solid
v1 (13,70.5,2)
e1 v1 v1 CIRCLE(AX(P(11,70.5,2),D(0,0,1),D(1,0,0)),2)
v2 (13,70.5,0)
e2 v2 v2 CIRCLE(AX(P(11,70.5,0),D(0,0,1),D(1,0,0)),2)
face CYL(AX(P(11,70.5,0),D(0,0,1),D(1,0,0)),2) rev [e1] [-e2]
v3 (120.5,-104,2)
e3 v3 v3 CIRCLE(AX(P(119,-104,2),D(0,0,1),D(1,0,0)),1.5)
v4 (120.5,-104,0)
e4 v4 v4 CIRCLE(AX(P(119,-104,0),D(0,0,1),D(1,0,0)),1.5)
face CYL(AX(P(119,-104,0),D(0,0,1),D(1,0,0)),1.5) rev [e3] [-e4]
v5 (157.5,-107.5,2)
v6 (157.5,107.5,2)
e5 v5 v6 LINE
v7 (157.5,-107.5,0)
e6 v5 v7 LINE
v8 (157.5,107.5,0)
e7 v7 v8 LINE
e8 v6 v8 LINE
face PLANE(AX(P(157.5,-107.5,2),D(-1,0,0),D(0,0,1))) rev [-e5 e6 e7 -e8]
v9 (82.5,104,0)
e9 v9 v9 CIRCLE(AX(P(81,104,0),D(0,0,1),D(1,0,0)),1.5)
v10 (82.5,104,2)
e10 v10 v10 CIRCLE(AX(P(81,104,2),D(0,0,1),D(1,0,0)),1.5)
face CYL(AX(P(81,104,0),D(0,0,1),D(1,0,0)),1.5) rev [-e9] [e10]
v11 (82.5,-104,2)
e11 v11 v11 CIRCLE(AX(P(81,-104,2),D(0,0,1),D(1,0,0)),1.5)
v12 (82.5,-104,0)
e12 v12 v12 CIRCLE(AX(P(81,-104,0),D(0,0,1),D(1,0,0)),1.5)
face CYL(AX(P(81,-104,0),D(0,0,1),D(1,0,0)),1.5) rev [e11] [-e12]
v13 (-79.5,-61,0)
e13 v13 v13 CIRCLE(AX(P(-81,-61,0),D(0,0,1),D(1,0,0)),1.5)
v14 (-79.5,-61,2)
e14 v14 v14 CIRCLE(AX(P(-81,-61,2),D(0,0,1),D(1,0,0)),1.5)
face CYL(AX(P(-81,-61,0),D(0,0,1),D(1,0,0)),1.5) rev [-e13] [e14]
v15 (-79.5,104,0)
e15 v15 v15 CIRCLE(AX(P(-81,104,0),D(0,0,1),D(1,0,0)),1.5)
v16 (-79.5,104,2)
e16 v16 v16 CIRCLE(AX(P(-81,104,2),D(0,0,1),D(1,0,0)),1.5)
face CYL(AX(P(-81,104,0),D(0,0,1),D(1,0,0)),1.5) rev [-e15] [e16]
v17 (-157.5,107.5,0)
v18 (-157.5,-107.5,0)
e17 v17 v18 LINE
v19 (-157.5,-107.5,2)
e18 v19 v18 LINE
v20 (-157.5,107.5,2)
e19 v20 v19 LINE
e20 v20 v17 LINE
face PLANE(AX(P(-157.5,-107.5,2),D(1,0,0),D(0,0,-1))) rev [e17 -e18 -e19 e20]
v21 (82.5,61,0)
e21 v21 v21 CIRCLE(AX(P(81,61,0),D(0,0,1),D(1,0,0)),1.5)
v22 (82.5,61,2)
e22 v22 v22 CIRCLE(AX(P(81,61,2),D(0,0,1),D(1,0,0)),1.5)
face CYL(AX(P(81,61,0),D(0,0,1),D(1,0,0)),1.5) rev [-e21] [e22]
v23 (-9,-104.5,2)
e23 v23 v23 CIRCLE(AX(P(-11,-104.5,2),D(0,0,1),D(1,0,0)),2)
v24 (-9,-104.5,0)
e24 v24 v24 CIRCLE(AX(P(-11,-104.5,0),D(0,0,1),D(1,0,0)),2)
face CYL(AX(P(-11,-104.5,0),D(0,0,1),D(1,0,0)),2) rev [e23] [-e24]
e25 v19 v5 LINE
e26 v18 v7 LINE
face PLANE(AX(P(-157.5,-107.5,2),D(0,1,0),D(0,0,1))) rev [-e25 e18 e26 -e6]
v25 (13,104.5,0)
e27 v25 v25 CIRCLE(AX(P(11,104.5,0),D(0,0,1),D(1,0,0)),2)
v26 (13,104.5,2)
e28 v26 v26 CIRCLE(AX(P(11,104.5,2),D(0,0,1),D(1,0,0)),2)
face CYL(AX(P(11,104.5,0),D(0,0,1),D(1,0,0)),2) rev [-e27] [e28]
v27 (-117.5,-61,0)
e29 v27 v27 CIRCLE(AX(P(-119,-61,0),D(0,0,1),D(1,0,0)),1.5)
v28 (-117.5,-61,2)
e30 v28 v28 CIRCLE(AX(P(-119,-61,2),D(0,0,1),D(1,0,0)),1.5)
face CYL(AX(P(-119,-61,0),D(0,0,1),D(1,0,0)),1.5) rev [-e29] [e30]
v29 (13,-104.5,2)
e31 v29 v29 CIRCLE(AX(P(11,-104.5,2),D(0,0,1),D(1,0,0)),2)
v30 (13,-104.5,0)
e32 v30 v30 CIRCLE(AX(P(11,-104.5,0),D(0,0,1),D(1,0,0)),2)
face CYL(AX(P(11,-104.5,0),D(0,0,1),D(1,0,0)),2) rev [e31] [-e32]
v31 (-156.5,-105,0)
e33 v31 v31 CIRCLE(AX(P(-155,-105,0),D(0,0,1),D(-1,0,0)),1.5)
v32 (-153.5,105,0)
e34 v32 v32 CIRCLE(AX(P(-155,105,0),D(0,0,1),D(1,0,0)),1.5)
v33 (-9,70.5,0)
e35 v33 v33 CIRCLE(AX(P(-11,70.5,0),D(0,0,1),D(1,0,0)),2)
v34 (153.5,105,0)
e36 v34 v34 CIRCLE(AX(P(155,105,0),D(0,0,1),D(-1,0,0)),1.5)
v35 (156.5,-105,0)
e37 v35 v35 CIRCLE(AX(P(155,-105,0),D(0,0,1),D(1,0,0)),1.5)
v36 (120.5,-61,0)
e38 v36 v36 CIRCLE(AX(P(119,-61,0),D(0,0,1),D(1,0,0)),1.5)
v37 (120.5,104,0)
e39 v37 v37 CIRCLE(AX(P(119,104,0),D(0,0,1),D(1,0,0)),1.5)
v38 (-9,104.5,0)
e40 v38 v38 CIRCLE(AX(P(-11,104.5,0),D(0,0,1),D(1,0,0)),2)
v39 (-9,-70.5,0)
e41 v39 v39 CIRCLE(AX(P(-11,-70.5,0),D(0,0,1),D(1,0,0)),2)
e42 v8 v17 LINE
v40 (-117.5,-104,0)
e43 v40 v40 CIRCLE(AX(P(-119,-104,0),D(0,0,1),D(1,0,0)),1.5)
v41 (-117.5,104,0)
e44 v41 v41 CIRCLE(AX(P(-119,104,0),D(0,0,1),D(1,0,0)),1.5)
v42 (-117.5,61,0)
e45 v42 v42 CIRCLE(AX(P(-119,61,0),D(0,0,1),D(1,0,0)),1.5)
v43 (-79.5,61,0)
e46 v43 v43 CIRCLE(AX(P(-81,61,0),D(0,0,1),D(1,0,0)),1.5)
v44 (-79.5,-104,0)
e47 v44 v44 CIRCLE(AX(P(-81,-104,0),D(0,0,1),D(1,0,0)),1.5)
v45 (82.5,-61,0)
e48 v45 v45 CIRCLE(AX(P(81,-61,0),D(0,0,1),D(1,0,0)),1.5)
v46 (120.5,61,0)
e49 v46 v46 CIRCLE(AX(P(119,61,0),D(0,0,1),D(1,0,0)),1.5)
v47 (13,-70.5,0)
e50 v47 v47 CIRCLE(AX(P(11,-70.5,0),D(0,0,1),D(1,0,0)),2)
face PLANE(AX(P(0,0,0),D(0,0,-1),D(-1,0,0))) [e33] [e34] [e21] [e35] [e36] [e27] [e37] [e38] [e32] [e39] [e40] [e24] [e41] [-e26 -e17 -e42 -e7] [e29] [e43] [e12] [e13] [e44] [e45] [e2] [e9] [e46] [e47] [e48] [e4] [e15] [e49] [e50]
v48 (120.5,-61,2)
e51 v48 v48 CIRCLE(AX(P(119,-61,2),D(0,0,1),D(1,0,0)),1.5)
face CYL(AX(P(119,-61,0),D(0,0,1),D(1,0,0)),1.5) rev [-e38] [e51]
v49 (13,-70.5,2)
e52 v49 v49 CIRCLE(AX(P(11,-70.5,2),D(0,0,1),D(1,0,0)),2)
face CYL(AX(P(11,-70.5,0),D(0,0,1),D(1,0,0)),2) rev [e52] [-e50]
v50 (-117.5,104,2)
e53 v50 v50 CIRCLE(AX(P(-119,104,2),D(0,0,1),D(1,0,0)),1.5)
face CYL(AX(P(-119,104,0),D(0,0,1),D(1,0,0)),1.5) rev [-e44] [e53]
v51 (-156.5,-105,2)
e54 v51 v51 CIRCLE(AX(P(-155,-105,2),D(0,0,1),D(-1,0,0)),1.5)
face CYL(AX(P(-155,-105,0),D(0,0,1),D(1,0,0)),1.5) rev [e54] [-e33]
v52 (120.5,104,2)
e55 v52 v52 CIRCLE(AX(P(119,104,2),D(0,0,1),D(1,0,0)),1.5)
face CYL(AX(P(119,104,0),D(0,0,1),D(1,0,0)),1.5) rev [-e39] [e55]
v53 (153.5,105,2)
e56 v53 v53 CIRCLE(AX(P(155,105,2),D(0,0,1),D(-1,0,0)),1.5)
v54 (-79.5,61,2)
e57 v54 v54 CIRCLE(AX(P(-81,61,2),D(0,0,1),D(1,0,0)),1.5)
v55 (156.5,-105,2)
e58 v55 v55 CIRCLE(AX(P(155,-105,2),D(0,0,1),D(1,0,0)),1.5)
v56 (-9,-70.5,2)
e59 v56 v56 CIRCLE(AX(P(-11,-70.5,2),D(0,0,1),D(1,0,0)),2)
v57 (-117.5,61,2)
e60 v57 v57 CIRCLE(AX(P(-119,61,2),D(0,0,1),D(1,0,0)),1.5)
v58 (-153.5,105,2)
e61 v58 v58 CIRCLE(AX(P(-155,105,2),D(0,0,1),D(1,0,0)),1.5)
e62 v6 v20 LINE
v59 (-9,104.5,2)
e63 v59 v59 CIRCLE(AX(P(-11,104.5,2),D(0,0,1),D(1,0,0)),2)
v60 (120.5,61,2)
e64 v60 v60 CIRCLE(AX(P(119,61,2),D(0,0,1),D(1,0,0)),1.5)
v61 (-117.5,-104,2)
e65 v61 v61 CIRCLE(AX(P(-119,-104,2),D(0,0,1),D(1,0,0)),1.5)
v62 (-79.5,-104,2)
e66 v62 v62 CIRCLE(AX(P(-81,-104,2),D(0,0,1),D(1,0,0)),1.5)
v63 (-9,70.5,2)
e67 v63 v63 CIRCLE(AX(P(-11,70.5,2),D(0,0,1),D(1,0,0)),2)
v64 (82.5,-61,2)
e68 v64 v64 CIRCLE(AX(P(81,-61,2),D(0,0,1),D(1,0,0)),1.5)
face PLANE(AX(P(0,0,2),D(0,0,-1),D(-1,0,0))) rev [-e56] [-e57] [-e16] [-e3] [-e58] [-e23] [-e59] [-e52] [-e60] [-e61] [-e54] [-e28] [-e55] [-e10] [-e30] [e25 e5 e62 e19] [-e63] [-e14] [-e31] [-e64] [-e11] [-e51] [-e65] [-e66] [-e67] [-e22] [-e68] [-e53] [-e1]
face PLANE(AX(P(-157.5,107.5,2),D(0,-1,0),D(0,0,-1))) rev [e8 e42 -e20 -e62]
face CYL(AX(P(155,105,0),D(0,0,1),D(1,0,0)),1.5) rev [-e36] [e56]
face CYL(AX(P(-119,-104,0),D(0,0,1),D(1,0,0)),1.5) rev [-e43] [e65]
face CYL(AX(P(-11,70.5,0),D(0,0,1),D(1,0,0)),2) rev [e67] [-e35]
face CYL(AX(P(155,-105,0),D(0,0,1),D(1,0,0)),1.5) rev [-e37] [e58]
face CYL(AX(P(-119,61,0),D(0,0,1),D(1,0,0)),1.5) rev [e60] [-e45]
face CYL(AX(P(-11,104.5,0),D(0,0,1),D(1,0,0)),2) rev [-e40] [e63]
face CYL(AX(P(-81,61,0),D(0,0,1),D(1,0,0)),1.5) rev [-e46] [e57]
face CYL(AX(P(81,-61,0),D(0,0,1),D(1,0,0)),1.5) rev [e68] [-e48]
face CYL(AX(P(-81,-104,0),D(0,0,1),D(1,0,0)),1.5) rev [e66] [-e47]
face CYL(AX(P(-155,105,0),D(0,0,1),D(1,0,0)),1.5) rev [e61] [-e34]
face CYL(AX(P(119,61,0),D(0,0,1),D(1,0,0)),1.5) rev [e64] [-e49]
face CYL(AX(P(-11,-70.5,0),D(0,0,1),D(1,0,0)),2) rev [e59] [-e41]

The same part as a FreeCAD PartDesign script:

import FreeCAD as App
import Part
import Sketcher
from FreeCAD import Vector
Q = App.Units.Quantity


def add_polygon(sketch, points):
    """Adds a closed chain of lines whose ends are joined by coincident constraints."""
    first, n = sketch.GeometryCount, len(points)
    for a, b in zip(points, points[1:] + points[:1]):
        sketch.addGeometry(Part.LineSegment(App.Vector(*a, 0), App.Vector(*b, 0)), False)
    for i in range(n):
        sketch.addConstraint(Sketcher.Constraint("Coincident", first + i, 2, first + (i + 1) % n, 1))

doc = App.newDocument("Part")
body = doc.addObject("PartDesign::Body", "Body")

sketch1 = body.newObject("Sketcher::SketchObject", "Sketch")
sketch1.AttachmentSupport = (doc.getObject("XY_Plane"), [""])
sketch1.MapMode = "FlatFace"
add_polygon(sketch1, [(-158, 108), (-158, -108), (158, -108), (158, 108)])
sketch1.addConstraint([
    Sketcher.Constraint("Vertical", 0),
    Sketcher.Constraint("Horizontal", 1),
    Sketcher.Constraint("Vertical", 2),
    Sketcher.Constraint("Horizontal", 3),
    Sketcher.Constraint("Symmetric", 0, 2, 2, 2, -1, 1),
    Sketcher.Constraint("DistanceX", 1, 1, 1, 2, Q("315 mm")),
    Sketcher.Constraint("DistanceY", 0, 2, 0, 1, Q("215 mm")),
])
pad1 = body.newObject("PartDesign::Pad", "Pad")
pad1.Profile = sketch1
pad1.Length = 2

sketch2 = body.newObject("Sketcher::SketchObject", "Sketch001")
sketch2.AttachmentSupport = (doc.getObject("XY_Plane"), [""])
sketch2.MapMode = "FlatFace"
sketch2.AttachmentOffset = App.Placement(Vector(0, 0, 2), App.Rotation())
sketch2.addGeometry([
    Part.Circle(Vector(-155, 105, 0), Vector(0, 0, 1), 1.5),
    Part.Circle(Vector(155, 105, 0), Vector(0, 0, 1), 1.5),
    Part.Circle(Vector(155, -105, 0), Vector(0, 0, 1), 1.5),
    Part.Circle(Vector(-155, -105, 0), Vector(0, 0, 1), 1.5),
], False)
sketch2.addConstraint([
    Sketcher.Constraint("Equal", 0, 1),
    Sketcher.Constraint("Equal", 1, 2),
    Sketcher.Constraint("Equal", 2, 3),
    Sketcher.Constraint("Symmetric", 0, 3, 2, 3, -1, 1),
    Sketcher.Constraint("Symmetric", 1, 3, 3, 3, -1, 1),
    Sketcher.Constraint("Symmetric", 0, 3, 1, 3, -2),
    Sketcher.Constraint("Diameter", 0, Q("3 mm")),
    Sketcher.Constraint("DistanceX", 0, 3, -1, 1, Q("155 mm")),
    Sketcher.Constraint("DistanceY", -1, 1, 0, 3, Q("105 mm")),
])
pocket1 = body.newObject("PartDesign::Pocket", "Pocket")
pocket1.Profile = sketch2
pocket1.Length = 2

sketch3 = body.newObject("Sketcher::SketchObject", "Sketch002")
sketch3.AttachmentSupport = (doc.getObject("XY_Plane"), [""])
sketch3.MapMode = "FlatFace"
sketch3.AttachmentOffset = App.Placement(Vector(0, 0, 2), App.Rotation())
sketch3.addGeometry([
    Part.Circle(Vector(-119, 104, 0), Vector(0, 0, 1), 1.5),
    Part.Circle(Vector(-81, 104, 0), Vector(0, 0, 1), 1.5),
    Part.Circle(Vector(-119, 61, 0), Vector(0, 0, 1), 1.5),
    Part.Circle(Vector(-81, 61, 0), Vector(0, 0, 1), 1.5),
    Part.Circle(Vector(81, 104, 0), Vector(0, 0, 1), 1.5),
    Part.Circle(Vector(119, 104, 0), Vector(0, 0, 1), 1.5),
    Part.Circle(Vector(119, 61, 0), Vector(0, 0, 1), 1.5),
    Part.Circle(Vector(81, 61, 0), Vector(0, 0, 1), 1.5),
    Part.Circle(Vector(81, -61, 0), Vector(0, 0, 1), 1.5),
    Part.Circle(Vector(119, -61, 0), Vector(0, 0, 1), 1.5),
    Part.Circle(Vector(119, -104, 0), Vector(0, 0, 1), 1.5),
    Part.Circle(Vector(81, -104, 0), Vector(0, 0, 1), 1.5),
    Part.Circle(Vector(-119, -61, 0), Vector(0, 0, 1), 1.5),
    Part.Circle(Vector(-81, -61, 0), Vector(0, 0, 1), 1.5),
    Part.Circle(Vector(-81, -104, 0), Vector(0, 0, 1), 1.5),
    Part.Circle(Vector(-119, -104, 0), Vector(0, 0, 1), 1.5),
], False)
sketch3.addConstraint([
    Sketcher.Constraint("Equal", 0, 1),
    Sketcher.Constraint("Equal", 1, 2),
    Sketcher.Constraint("Equal", 2, 3),
    Sketcher.Constraint("Equal", 3, 4),
    Sketcher.Constraint("Equal", 4, 5),
    Sketcher.Constraint("Equal", 5, 6),
    Sketcher.Constraint("Equal", 6, 7),
    Sketcher.Constraint("Equal", 7, 8),
    Sketcher.Constraint("Equal", 8, 9),
    Sketcher.Constraint("Equal", 9, 10),
    Sketcher.Constraint("Equal", 10, 11),
    Sketcher.Constraint("Equal", 11, 12),
    Sketcher.Constraint("Equal", 12, 13),
    Sketcher.Constraint("Equal", 13, 14),
    Sketcher.Constraint("Equal", 14, 15),
    Sketcher.Constraint("Symmetric", 3, 3, 8, 3, -1, 1),
    Sketcher.Constraint("Symmetric", 2, 3, 9, 3, -1, 1),
    Sketcher.Constraint("Symmetric", 0, 3, 10, 3, -1, 1),
    Sketcher.Constraint("Symmetric", 1, 3, 11, 3, -1, 1),
    Sketcher.Constraint("Symmetric", 6, 3, 12, 3, -1, 1),
    Sketcher.Constraint("Symmetric", 7, 3, 13, 3, -1, 1),
    Sketcher.Constraint("Symmetric", 4, 3, 14, 3, -1, 1),
    Sketcher.Constraint("Symmetric", 5, 3, 15, 3, -1, 1),
    Sketcher.Constraint("Symmetric", 1, 3, 4, 3, -2),
    Sketcher.Constraint("Symmetric", 0, 3, 5, 3, -2),
    Sketcher.Constraint("Symmetric", 2, 3, 6, 3, -2),
    Sketcher.Constraint("Symmetric", 3, 3, 7, 3, -2),
    Sketcher.Constraint("Horizontal", 0, 3, 1, 3),
    Sketcher.Constraint("Horizontal", 2, 3, 3, 3),
    Sketcher.Constraint("Vertical", 0, 3, 2, 3),
    Sketcher.Constraint("Vertical", 1, 3, 3, 3),
    Sketcher.Constraint("Diameter", 0, Q("3 mm")),
    Sketcher.Constraint("DistanceX", 0, 3, -1, 1, Q("119 mm")),
    Sketcher.Constraint("DistanceY", -1, 1, 0, 3, Q("104 mm")),
    Sketcher.Constraint("DistanceX", 1, 3, -1, 1, Q("81 mm")),
    Sketcher.Constraint("DistanceY", -1, 1, 2, 3, Q("61 mm")),
])
pocket2 = body.newObject("PartDesign::Pocket", "Pocket001")
pocket2.Profile = sketch3
pocket2.Length = 2

sketch4 = body.newObject("Sketcher::SketchObject", "Sketch003")
sketch4.AttachmentSupport = (doc.getObject("XY_Plane"), [""])
sketch4.MapMode = "FlatFace"
sketch4.AttachmentOffset = App.Placement(Vector(0, 0, 2), App.Rotation())
sketch4.addGeometry([
    Part.Circle(Vector(-11, 104.5, 0), Vector(0, 0, 1), 2),
    Part.Circle(Vector(11, 104.5, 0), Vector(0, 0, 1), 2),
    Part.Circle(Vector(-11, 70.5, 0), Vector(0, 0, 1), 2),
    Part.Circle(Vector(11, 70.5, 0), Vector(0, 0, 1), 2),
    Part.Circle(Vector(-11, -70.5, 0), Vector(0, 0, 1), 2),
    Part.Circle(Vector(11, -70.5, 0), Vector(0, 0, 1), 2),
    Part.Circle(Vector(-11, -104.5, 0), Vector(0, 0, 1), 2),
    Part.Circle(Vector(11, -104.5, 0), Vector(0, 0, 1), 2),
], False)
sketch4.addConstraint([
    Sketcher.Constraint("Equal", 0, 1),
    Sketcher.Constraint("Equal", 1, 2),
    Sketcher.Constraint("Equal", 2, 3),
    Sketcher.Constraint("Equal", 3, 4),
    Sketcher.Constraint("Equal", 4, 5),
    Sketcher.Constraint("Equal", 5, 6),
    Sketcher.Constraint("Equal", 6, 7),
    Sketcher.Constraint("Symmetric", 3, 3, 4, 3, -1, 1),
    Sketcher.Constraint("Symmetric", 2, 3, 5, 3, -1, 1),
    Sketcher.Constraint("Symmetric", 1, 3, 6, 3, -1, 1),
    Sketcher.Constraint("Symmetric", 0, 3, 7, 3, -1, 1),
    Sketcher.Constraint("Symmetric", 0, 3, 1, 3, -2),
    Sketcher.Constraint("Symmetric", 2, 3, 3, 3, -2),
    Sketcher.Constraint("Vertical", 0, 3, 2, 3),
    Sketcher.Constraint("Diameter", 0, Q("4 mm")),
    Sketcher.Constraint("DistanceX", 0, 3, -1, 1, Q("11 mm")),
    Sketcher.Constraint("DistanceY", 2, 3, 0, 3, Q("34 mm")),
    Sketcher.Constraint("DistanceY", 4, 3, 2, 3, Q("141 mm")),
])
pocket3 = body.newObject("PartDesign::Pocket", "Pocket002")
pocket3.Profile = sketch4
pocket3.Length = 2

doc.recompute()
